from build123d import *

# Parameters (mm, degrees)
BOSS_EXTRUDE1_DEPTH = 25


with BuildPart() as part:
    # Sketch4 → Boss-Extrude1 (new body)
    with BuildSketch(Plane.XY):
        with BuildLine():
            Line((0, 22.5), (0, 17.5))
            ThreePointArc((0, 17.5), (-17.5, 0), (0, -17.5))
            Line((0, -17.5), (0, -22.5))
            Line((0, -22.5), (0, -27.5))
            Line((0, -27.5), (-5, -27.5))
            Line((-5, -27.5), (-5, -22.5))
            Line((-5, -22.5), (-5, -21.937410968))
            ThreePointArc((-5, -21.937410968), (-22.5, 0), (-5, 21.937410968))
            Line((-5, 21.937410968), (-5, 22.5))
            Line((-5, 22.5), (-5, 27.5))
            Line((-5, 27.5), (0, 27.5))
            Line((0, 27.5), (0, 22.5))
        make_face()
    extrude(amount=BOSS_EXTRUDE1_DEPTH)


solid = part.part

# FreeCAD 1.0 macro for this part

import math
import FreeCAD as App
import Part
import Sketcher

doc = App.newDocument("Part")
params = doc.addObject("Spreadsheet::Sheet", "Params")
for row, (alias, value) in enumerate([
    ("sketch1_radius", "17.5 mm"),
    ("sketch1_radius2", "22.5 mm"),
    ("sketch1_width", "5 mm"),
    ("sketch1_height", "10 mm"),
    ("pad1_length", "25 mm"),
], start=1):
    params.set(f"A{row}", alias)
    params.set(f"B{row}", "=" + value)
    params.setAlias(f"B{row}", alias)

body = doc.addObject("PartDesign::Body", "Body")

sketch1 = doc.addObject("Sketcher::SketchObject", "Sketch")
body.addObject(sketch1)
sketch1.AttachmentSupport = (doc.XY_Plane, [""])
sketch1.MapMode = "FlatFace"
sketch1.addGeometry([
    Part.ArcOfCircle(Part.Circle(App.Vector(0, 0, 0), App.Vector(0, 0, 1), 18), math.radians(90), math.radians(270)),
    Part.LineSegment(App.Vector(0, 18, 0), App.Vector(0, 28, 0)),
    Part.LineSegment(App.Vector(0, 28, 0), App.Vector(-5, 28, 0)),
    Part.LineSegment(App.Vector(-5, 28, 0), App.Vector(-5, 22, 0)),
    Part.ArcOfCircle(Part.Circle(App.Vector(0, 0, 0), App.Vector(0, 0, 1), 22), math.radians(103), math.radians(257)),
    Part.LineSegment(App.Vector(-5, -22, 0), App.Vector(-5, -28, 0)),
    Part.LineSegment(App.Vector(-5, -28, 0), App.Vector(0, -28, 0)),
    Part.LineSegment(App.Vector(0, -28, 0), App.Vector(0, -18, 0)),
], False)
sketch1.addConstraint([
    Sketcher.Constraint("Coincident", 0, 1, 1, 1),
    Sketcher.Constraint("Coincident", 1, 2, 2, 1),
    Sketcher.Constraint("Coincident", 2, 2, 3, 1),
    Sketcher.Constraint("Coincident", 3, 2, 4, 1),
    Sketcher.Constraint("Coincident", 4, 2, 5, 1),
    Sketcher.Constraint("Coincident", 5, 2, 6, 1),
    Sketcher.Constraint("Coincident", 6, 2, 7, 1),
    Sketcher.Constraint("Coincident", 7, 2, 0, 2),
    Sketcher.Constraint("Vertical", 1),
    Sketcher.Constraint("Horizontal", 2),
    Sketcher.Constraint("Vertical", 3),
    Sketcher.Constraint("Vertical", 5),
    Sketcher.Constraint("Horizontal", 6),
    Sketcher.Constraint("Vertical", 7),
    Sketcher.Constraint("Coincident", 0, 3, -1, 1),
    Sketcher.Constraint("Coincident", 4, 3, -1, 1),
    Sketcher.Constraint("Symmetric", 1, 2, 6, 2, -1, 1),
    Sketcher.Constraint("PointOnObject", 0, 1, -2),
    Sketcher.Constraint("Vertical", 3, 2, 4, 2),
    Sketcher.Constraint("Radius", 0, 17.5),
    Sketcher.Constraint("Radius", 4, 22.5),
    Sketcher.Constraint("DistanceX", 2, 2, 2, 1, 5.0),
    Sketcher.Constraint("DistanceY", 1, 1, 1, 2, 10.0),
])
sketch1.setExpression("Constraints[19]", "Params.sketch1_radius")
sketch1.setExpression("Constraints[20]", "Params.sketch1_radius2")
sketch1.setExpression("Constraints[21]", "Params.sketch1_width")
sketch1.setExpression("Constraints[22]", "Params.sketch1_height")
pad1 = doc.addObject("PartDesign::Pad", "Pad")
body.addObject(pad1)
pad1.Profile = sketch1
pad1.setExpression("Length", "Params.pad1_length")

doc.recompute()
